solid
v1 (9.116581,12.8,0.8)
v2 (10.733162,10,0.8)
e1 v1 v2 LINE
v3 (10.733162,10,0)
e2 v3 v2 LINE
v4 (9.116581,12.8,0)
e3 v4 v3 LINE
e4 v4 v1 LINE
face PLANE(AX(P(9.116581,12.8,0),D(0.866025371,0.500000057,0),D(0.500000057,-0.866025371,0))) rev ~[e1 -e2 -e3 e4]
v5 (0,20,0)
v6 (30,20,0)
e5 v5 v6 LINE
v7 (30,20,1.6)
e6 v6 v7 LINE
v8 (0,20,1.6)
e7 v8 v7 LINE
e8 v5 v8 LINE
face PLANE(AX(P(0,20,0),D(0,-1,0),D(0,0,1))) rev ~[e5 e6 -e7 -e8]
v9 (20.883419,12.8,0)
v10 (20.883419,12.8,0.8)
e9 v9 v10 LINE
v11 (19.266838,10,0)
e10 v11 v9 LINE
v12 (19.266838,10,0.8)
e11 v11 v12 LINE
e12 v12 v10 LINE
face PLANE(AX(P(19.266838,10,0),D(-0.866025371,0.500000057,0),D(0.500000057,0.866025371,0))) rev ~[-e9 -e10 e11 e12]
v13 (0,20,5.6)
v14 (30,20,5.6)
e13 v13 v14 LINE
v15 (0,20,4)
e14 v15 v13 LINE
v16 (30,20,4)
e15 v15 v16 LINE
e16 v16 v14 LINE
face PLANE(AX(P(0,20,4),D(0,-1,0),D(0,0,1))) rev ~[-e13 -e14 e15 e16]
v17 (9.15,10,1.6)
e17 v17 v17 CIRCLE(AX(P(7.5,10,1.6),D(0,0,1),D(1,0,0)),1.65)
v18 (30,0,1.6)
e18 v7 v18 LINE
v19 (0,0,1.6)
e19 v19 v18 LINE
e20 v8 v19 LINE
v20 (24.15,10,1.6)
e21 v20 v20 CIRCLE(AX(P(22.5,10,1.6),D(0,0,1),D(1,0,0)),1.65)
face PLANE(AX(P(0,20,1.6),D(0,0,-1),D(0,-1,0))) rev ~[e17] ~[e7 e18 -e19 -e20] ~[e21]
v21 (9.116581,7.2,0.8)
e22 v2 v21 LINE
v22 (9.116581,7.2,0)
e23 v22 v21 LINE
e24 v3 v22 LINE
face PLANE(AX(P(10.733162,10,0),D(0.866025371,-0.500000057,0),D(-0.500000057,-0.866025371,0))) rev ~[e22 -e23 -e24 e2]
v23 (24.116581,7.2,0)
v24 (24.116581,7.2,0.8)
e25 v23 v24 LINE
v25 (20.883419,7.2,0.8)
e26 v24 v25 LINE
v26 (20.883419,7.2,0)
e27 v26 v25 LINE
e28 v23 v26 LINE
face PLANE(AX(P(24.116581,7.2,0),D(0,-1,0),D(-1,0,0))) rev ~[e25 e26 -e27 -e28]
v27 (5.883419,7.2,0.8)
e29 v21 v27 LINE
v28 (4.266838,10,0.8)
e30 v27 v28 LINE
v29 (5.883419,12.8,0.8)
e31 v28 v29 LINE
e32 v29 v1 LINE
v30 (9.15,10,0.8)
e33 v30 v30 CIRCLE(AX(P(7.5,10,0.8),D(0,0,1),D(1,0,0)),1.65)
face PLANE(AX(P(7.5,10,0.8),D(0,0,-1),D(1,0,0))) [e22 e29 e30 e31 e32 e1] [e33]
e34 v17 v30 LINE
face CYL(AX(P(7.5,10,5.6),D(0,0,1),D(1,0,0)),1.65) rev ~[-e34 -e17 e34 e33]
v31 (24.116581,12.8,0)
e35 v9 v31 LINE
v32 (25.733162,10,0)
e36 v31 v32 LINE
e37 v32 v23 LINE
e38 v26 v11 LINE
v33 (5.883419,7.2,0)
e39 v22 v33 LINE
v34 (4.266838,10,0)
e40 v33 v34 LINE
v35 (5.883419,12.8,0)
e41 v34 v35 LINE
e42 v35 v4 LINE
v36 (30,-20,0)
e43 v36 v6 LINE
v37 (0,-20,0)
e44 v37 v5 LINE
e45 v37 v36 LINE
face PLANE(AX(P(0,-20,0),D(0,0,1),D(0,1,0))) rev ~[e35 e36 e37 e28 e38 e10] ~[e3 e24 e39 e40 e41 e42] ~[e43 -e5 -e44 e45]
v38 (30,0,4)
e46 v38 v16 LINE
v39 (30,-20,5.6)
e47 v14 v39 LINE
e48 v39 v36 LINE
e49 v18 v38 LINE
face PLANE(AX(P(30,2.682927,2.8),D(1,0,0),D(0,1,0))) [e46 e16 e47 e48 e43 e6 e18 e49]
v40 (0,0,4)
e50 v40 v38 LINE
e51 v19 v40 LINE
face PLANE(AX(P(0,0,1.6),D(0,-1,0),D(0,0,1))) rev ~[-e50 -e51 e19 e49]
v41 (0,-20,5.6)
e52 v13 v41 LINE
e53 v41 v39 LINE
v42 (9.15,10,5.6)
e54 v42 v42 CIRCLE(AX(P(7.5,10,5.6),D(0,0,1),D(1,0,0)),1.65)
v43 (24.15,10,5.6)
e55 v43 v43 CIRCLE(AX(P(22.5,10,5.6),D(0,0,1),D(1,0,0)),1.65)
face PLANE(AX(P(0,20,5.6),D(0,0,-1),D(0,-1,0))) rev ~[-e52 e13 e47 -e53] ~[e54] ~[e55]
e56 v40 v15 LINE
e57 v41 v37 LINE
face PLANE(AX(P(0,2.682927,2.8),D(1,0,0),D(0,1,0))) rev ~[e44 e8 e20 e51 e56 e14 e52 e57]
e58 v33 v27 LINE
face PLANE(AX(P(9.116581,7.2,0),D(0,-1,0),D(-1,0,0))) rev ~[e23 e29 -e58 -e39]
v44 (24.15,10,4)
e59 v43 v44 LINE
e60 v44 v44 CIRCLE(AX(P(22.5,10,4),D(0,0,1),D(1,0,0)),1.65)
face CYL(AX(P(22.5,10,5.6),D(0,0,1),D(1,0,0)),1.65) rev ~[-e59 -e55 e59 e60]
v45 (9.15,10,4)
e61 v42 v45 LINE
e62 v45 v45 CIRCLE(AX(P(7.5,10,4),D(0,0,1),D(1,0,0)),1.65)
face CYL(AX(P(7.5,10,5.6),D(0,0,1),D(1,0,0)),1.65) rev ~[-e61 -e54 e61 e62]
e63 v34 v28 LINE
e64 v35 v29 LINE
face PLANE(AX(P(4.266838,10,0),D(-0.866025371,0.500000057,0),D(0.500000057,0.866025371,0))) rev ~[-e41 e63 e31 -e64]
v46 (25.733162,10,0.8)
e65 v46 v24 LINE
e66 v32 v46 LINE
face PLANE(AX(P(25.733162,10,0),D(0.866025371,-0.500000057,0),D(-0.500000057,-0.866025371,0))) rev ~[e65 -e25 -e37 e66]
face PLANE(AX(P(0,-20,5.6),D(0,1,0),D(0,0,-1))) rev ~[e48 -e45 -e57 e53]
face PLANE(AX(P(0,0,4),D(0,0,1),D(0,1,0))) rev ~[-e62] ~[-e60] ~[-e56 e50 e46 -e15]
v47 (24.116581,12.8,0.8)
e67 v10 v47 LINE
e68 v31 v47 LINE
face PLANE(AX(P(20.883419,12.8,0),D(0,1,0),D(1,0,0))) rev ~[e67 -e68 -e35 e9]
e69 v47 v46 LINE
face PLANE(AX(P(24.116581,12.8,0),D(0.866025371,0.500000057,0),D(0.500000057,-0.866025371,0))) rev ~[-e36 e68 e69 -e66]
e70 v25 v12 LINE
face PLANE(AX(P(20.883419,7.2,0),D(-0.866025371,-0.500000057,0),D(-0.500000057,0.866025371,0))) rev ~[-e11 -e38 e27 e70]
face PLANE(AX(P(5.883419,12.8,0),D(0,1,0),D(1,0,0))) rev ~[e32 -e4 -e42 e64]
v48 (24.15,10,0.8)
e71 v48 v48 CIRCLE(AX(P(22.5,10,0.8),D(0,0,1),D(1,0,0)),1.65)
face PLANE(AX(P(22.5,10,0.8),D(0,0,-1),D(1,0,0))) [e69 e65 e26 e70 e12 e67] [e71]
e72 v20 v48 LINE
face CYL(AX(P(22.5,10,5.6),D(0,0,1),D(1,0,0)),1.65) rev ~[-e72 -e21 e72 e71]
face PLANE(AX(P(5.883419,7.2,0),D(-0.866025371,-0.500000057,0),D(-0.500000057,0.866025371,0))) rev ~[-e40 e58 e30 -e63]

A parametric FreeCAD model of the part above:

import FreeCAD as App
import Part
import Sketcher
from FreeCAD import Vector
Q = App.Units.Quantity


def add_polygon(sketch, points):
    """Adds a closed chain of lines whose ends are joined by coincident constraints."""
    first, n = sketch.GeometryCount, len(points)
    for a, b in zip(points, points[1:] + points[:1]):
        sketch.addGeometry(Part.LineSegment(App.Vector(*a, 0), App.Vector(*b, 0)), False)
    for i in range(n):
        sketch.addConstraint(Sketcher.Constraint("Coincident", first + i, 2, first + (i + 1) % n, 1))

doc = App.newDocument("Part")
body = doc.addObject("PartDesign::Body", "Body")

# Sketch on YZ plane
sketch1 = body.newObject("Sketcher::SketchObject", "Sketch")
sketch1.AttachmentSupport = (doc.getObject("YZ_Plane"), [""])
sketch1.MapMode = "FlatFace"
add_polygon(sketch1, [(-20, 5.6), (-20, 0), (20, 0), (20, 1.6), (0, 1.6), (0, 4), (20, 4), (20, 5.6)])  # lines 0-7
sketch1.addConstraint([
    Sketcher.Constraint("Vertical", 0),
    Sketcher.Constraint("Horizontal", 1),
    Sketcher.Constraint("Vertical", 2),
    Sketcher.Constraint("Horizontal", 3),
    Sketcher.Constraint("Vertical", 4),
    Sketcher.Constraint("Horizontal", 5),
    Sketcher.Constraint("Vertical", 6),
    Sketcher.Constraint("Horizontal", 7),
    Sketcher.Constraint("Symmetric", 0, 2, 1, 2, -1, 1),
    Sketcher.Constraint("PointOnObject", 3, 2, -2),
    Sketcher.Constraint("Vertical", 2, 2, 5, 2),
    Sketcher.Constraint("Equal", 2, 6),
    Sketcher.Constraint("DistanceX", 1, 1, 1, 2, 40.0),
    Sketcher.Constraint("DistanceY", 0, 2, 0, 1, 5.6),
    Sketcher.Constraint("DistanceY", 2, 1, 2, 2, 1.6),
])
pad1 = body.newObject("PartDesign::Pad", "Pad")
pad1.Profile = sketch1
pad1.Length = 30

# Sketch on XY plane
sketch2 = body.newObject("Sketcher::SketchObject", "Sketch001")
sketch2.AttachmentSupport = (doc.getObject("XY_Plane"), [""])
sketch2.MapMode = "FlatFace"
sketch2.AttachmentOffset = App.Placement(Vector(0, 0, 5.6), App.Rotation())
sketch2.addGeometry([
    Part.Circle(Vector(7.5, 10, 0), Vector(0, 0, 1), 1.65),
    Part.Circle(Vector(22.5, 10, 0), Vector(0, 0, 1), 1.65),
], False)
sketch2.addConstraint([
    Sketcher.Constraint("Equal", 0, 1),
    Sketcher.Constraint("Horizontal", 0, 3, 1, 3),
    Sketcher.Constraint("Diameter", 0, 3.3),
    Sketcher.Constraint("DistanceY", -1, 1, 0, 3, 10.0),
    Sketcher.Constraint("DistanceX", 0, 3, 1, 3, 15.0),
    Sketcher.Constraint("DistanceX", -1, 1, 0, 3, 7.5),
])
pocket1 = body.newObject("PartDesign::Pocket", "Pocket")
pocket1.Profile = sketch2
pocket1.Type = "ThroughAll"

# Sketch on XY plane
sketch3 = body.newObject("Sketcher::SketchObject", "Sketch002")
sketch3.AttachmentSupport = (doc.getObject("XY_Plane"), [""])
sketch3.MapMode = "FlatFace"
add_polygon(sketch3, [(25.733162, 10), (24.116581, 7.2), (20.883419, 7.2), (19.266838, 10), (20.883419, 12.8), (24.116581, 12.8)])  # lines 0-5
add_polygon(sketch3, [(10.733162, 10), (9.116581, 7.2), (5.883419, 7.2), (4.266838, 10), (5.883419, 12.8), (9.116581, 12.8)])  # lines 6-11
sketch3.addConstraint([
    Sketcher.Constraint("Horizontal", 1),
    Sketcher.Constraint("Horizontal", 4),
    Sketcher.Constraint("Horizontal", 7),
    Sketcher.Constraint("Horizontal", 10),
    Sketcher.Constraint("Parallel", 0, 3),
    Sketcher.Constraint("Parallel", 2, 5),
    Sketcher.Constraint("Parallel", 3, 6),
    Sketcher.Constraint("Parallel", 5, 8),
    Sketcher.Constraint("Parallel", 6, 9),
    Sketcher.Constraint("Parallel", 8, 11),
    Sketcher.Constraint("Horizontal", 2, 2, 5, 2),
    Sketcher.Constraint("Horizontal", 1, 2, 6, 2),
    Sketcher.Constraint("Horizontal", 5, 2, 8, 2),
    Sketcher.Constraint("Horizontal", 4, 2, 9, 2),
    Sketcher.Constraint("Horizontal", 8, 2, 11, 2),
    Sketcher.Constraint("Vertical", 1, 2, 3, 2),
    Sketcher.Constraint("Vertical", 0, 2, 4, 2),
    Sketcher.Constraint("Equal", 4, 7),
    Sketcher.Constraint("Angle", 0, Q("-120.000004 deg")),
    Sketcher.Constraint("DistanceY", -1, 1, 2, 2, 10.0),
    Sketcher.Constraint("DistanceX", 6, 2, 0, 2, 15.0),
    Sketcher.Constraint("DistanceY", -1, 1, 0, 2, 7.2),
    Sketcher.Constraint("DistanceX", 1, 2, 1, 1, 3.233162),
    Sketcher.Constraint("DistanceX", -1, 1, 0, 2, 24.116581),
])
pocket2 = body.newObject("PartDesign::Pocket", "Pocket001")
pocket2.Profile = sketch3
pocket2.Length = 0.8
pocket2.Reversed = True

doc.recompute()
